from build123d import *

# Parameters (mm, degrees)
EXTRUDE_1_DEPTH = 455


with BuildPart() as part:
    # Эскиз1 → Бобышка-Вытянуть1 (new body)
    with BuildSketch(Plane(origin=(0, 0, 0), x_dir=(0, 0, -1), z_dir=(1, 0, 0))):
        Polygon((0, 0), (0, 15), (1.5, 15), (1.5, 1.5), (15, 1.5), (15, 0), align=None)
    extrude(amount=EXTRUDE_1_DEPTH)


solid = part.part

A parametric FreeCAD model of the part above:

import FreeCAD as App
import Part
import Sketcher

doc = App.newDocument("Part")
params = doc.addObject("Spreadsheet::Sheet", "Params")
for row, (alias, value) in enumerate([
    ("sketch1_width", "15 mm"),
    ("sketch1_width2", "1.5 mm"),
    ("pad1_length", "455 mm"),
], start=1):
    params.set(f"A{row}", alias)
    params.set(f"B{row}", "=" + value)
    params.setAlias(f"B{row}", alias)

body = doc.addObject("PartDesign::Body", "Body")

# Sketch on YZ plane
sketch1 = body.newObject("Sketcher::SketchObject", "Sketch")
sketch1.AttachmentSupport = (doc.getObject("YZ_Plane"), [""])
sketch1.MapMode = "FlatFace"
sketch1.addGeometry([
    Part.LineSegment(App.Vector(15, 0, 0), App.Vector(0, 0, 0)),  # 0
    Part.LineSegment(App.Vector(0, 0, 0), App.Vector(0, -15, 0)),  # 1
    Part.LineSegment(App.Vector(0, -15, 0), App.Vector(1.5, -15, 0)),  # 2
    Part.LineSegment(App.Vector(1.5, -15, 0), App.Vector(1.5, -1.5, 0)),  # 3
    Part.LineSegment(App.Vector(1.5, -1.5, 0), App.Vector(15, -1.5, 0)),  # 4
    Part.LineSegment(App.Vector(15, -1.5, 0), App.Vector(15, 0, 0)),  # 5
], False)
sketch1.addConstraint([
    Sketcher.Constraint("Coincident", 0, 2, 1, 1),
    Sketcher.Constraint("Coincident", 1, 2, 2, 1),
    Sketcher.Constraint("Coincident", 2, 2, 3, 1),
    Sketcher.Constraint("Coincident", 3, 2, 4, 1),
    Sketcher.Constraint("Coincident", 4, 2, 5, 1),
    Sketcher.Constraint("Coincident", 5, 2, 0, 1),
    Sketcher.Constraint("Horizontal", 0),
    Sketcher.Constraint("Vertical", 1),
    Sketcher.Constraint("Horizontal", 2),
    Sketcher.Constraint("Vertical", 3),
    Sketcher.Constraint("Horizontal", 4),
    Sketcher.Constraint("Vertical", 5),
    Sketcher.Constraint("Coincident", 0, 2, -1, 1),
    Sketcher.Constraint("Equal", 0, 1),
    Sketcher.Constraint("Equal", 4, 3),
    Sketcher.Constraint("DistanceX", 0, 2, 0, 1, 15.0),
    Sketcher.Constraint("DistanceX", 2, 1, 2, 2, 1.5),
])
sketch1.setExpression("Constraints[15]", "Params.sketch1_width")
sketch1.setExpression("Constraints[16]", "Params.sketch1_width2")
pad1 = body.newObject("PartDesign::Pad", "Pad")
pad1.Profile = sketch1
pad1.setExpression("Length", "Params.pad1_length")

doc.recompute()
